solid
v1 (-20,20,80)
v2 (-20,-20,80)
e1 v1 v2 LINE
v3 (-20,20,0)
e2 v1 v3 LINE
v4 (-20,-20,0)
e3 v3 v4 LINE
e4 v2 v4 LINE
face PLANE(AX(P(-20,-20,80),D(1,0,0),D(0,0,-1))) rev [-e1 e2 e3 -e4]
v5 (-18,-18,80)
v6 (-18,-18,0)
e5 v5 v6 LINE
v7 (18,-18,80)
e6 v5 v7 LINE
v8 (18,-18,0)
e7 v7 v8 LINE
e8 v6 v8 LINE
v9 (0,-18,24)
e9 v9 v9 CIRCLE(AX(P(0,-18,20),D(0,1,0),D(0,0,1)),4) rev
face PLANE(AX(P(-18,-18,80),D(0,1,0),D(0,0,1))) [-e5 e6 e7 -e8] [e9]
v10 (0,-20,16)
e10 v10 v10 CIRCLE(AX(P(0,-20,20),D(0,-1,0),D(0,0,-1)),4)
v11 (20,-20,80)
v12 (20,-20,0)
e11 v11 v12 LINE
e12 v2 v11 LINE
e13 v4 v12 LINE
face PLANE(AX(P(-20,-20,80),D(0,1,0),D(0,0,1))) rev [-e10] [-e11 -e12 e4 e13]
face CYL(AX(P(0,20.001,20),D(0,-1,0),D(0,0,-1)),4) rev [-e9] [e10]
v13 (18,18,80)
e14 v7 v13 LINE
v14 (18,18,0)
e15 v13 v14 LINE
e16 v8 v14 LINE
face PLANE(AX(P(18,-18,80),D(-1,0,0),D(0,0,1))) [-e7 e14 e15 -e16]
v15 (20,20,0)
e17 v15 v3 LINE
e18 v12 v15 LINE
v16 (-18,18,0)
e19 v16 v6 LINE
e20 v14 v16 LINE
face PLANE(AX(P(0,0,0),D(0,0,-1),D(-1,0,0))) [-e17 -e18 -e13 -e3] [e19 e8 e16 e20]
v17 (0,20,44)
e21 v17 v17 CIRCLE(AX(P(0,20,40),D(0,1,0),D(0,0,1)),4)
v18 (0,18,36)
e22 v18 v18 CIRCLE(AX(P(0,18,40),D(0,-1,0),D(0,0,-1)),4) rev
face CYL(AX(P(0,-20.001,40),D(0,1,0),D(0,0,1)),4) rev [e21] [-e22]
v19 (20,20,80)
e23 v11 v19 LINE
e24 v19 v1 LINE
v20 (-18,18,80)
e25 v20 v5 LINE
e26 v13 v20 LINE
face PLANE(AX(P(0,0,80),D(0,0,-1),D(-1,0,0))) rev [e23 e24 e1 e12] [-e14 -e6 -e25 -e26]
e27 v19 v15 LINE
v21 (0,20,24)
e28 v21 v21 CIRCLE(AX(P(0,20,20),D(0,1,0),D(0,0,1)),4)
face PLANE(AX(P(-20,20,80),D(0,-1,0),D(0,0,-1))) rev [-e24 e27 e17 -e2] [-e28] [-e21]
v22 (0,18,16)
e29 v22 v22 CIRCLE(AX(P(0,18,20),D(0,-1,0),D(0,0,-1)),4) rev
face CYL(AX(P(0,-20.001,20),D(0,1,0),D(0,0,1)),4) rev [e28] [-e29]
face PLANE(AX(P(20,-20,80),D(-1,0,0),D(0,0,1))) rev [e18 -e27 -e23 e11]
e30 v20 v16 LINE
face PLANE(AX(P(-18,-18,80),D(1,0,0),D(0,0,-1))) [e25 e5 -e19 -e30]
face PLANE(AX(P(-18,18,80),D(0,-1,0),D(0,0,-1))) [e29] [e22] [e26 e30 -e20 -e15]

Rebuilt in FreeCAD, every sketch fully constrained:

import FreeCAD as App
import Part
import Sketcher
from FreeCAD import Vector
Q = App.Units.Quantity

doc = App.newDocument("Part")
body = doc.addObject("PartDesign::Body", "Body")

# Sketch on XY plane
sketch1 = doc.addObject("Sketcher::SketchObject", "Sketch")
body.addObject(sketch1)
sketch1.AttachmentSupport = (doc.XY_Plane, [""])
sketch1.MapMode = "FlatFace"
sketch1.addGeometry([
    Part.LineSegment(Vector(-20, 20, 0), Vector(-20, -20, 0)),  # 0
    Part.LineSegment(Vector(-20, -20, 0), Vector(20, -20, 0)),  # 1
    Part.LineSegment(Vector(20, -20, 0), Vector(20, 20, 0)),  # 2
    Part.LineSegment(Vector(20, 20, 0), Vector(-20, 20, 0)),  # 3
    Part.LineSegment(Vector(18, -18, 0), Vector(-18, -18, 0)),  # 4
    Part.LineSegment(Vector(-18, -18, 0), Vector(-18, 18, 0)),  # 5
    Part.LineSegment(Vector(-18, 18, 0), Vector(18, 18, 0)),  # 6
    Part.LineSegment(Vector(18, 18, 0), Vector(18, -18, 0)),  # 7
], False)
sketch1.addConstraint([
    Sketcher.Constraint("Coincident", 0, 2, 1, 1),
    Sketcher.Constraint("Coincident", 1, 2, 2, 1),
    Sketcher.Constraint("Coincident", 2, 2, 3, 1),
    Sketcher.Constraint("Coincident", 3, 2, 0, 1),
    Sketcher.Constraint("Coincident", 4, 2, 5, 1),
    Sketcher.Constraint("Coincident", 5, 2, 6, 1),
    Sketcher.Constraint("Coincident", 6, 2, 7, 1),
    Sketcher.Constraint("Coincident", 7, 2, 4, 1),
    Sketcher.Constraint("Vertical", 0),
    Sketcher.Constraint("Horizontal", 1),
    Sketcher.Constraint("Vertical", 2),
    Sketcher.Constraint("Horizontal", 3),
    Sketcher.Constraint("Horizontal", 4),
    Sketcher.Constraint("Vertical", 5),
    Sketcher.Constraint("Horizontal", 6),
    Sketcher.Constraint("Vertical", 7),
    Sketcher.Constraint("Symmetric", 0, 2, 2, 2, -1, 1),
    Sketcher.Constraint("Symmetric", 4, 2, 6, 2, -1, 1),
    Sketcher.Constraint("Equal", 3, 0),
    Sketcher.Constraint("Equal", 6, 5),
    Sketcher.Constraint("DistanceX", 1, 1, 1, 2, Q("40 mm")),
    Sketcher.Constraint("DistanceX", 4, 2, 4, 1, Q("36 mm")),
])
pad1 = doc.addObject("PartDesign::Pad", "Pad")
body.addObject(pad1)
pad1.Profile = sketch1
pad1.Length = 80

# Sketch on XZ plane
sketch2 = doc.addObject("Sketcher::SketchObject", "Sketch001")
body.addObject(sketch2)
sketch2.AttachmentSupport = (doc.XZ_Plane, [""])
sketch2.MapMode = "FlatFace"
sketch2.AttachmentOffset = App.Placement(Vector(0, 0, -20), App.Rotation())
sketch2.addGeometry(Part.Circle(Vector(0, 20, 0), Vector(0, 0, 1), 4), False)
sketch2.addConstraint([
    Sketcher.Constraint("PointOnObject", 0, 3, -2),
    Sketcher.Constraint("Diameter", 0, Q("8 mm")),
    Sketcher.Constraint("DistanceY", -1, 1, 0, 3, Q("20 mm")),
])
pocket1 = doc.addObject("PartDesign::Pocket", "Pocket")
body.addObject(pocket1)
pocket1.Profile = sketch2
pocket1.Type = "UpToFirst"
pocket1.Reversed = True

# Sketch on XZ plane
sketch3 = doc.addObject("Sketcher::SketchObject", "Sketch002")
body.addObject(sketch3)
sketch3.AttachmentSupport = (doc.XZ_Plane, [""])
sketch3.MapMode = "FlatFace"
sketch3.AttachmentOffset = App.Placement(Vector(0, 0, -20), App.Rotation())
sketch3.addGeometry(Part.Circle(Vector(0, 40, 0), Vector(0, 0, 1), 4), False)
sketch3.addConstraint([
    Sketcher.Constraint("PointOnObject", 0, 3, -2),
    Sketcher.Constraint("Diameter", 0, Q("8 mm")),
    Sketcher.Constraint("DistanceY", -1, 1, 0, 3, Q("40 mm")),
])
pocket2 = doc.addObject("PartDesign::Pocket", "Pocket001")
body.addObject(pocket2)
pocket2.Profile = sketch3
pocket2.Type = "UpToFirst"
pocket2.Reversed = True

# Sketch on XZ plane
sketch4 = doc.addObject("Sketcher::SketchObject", "Sketch003")
body.addObject(sketch4)
sketch4.AttachmentSupport = (doc.XZ_Plane, [""])
sketch4.MapMode = "FlatFace"
sketch4.AttachmentOffset = App.Placement(Vector(0, 0, 20), App.Rotation())
sketch4.addGeometry(Part.Circle(Vector(0, 20, 0), Vector(0, 0, 1), 4), False)
sketch4.addConstraint([
    Sketcher.Constraint("PointOnObject", 0, 3, -2),
    Sketcher.Constraint("Diameter", 0, Q("8 mm")),
    Sketcher.Constraint("DistanceY", -1, 1, 0, 3, Q("20 mm")),
])
pocket3 = doc.addObject("PartDesign::Pocket", "Pocket002")
body.addObject(pocket3)
pocket3.Profile = sketch4
pocket3.Type = "UpToFirst"

doc.recompute()
